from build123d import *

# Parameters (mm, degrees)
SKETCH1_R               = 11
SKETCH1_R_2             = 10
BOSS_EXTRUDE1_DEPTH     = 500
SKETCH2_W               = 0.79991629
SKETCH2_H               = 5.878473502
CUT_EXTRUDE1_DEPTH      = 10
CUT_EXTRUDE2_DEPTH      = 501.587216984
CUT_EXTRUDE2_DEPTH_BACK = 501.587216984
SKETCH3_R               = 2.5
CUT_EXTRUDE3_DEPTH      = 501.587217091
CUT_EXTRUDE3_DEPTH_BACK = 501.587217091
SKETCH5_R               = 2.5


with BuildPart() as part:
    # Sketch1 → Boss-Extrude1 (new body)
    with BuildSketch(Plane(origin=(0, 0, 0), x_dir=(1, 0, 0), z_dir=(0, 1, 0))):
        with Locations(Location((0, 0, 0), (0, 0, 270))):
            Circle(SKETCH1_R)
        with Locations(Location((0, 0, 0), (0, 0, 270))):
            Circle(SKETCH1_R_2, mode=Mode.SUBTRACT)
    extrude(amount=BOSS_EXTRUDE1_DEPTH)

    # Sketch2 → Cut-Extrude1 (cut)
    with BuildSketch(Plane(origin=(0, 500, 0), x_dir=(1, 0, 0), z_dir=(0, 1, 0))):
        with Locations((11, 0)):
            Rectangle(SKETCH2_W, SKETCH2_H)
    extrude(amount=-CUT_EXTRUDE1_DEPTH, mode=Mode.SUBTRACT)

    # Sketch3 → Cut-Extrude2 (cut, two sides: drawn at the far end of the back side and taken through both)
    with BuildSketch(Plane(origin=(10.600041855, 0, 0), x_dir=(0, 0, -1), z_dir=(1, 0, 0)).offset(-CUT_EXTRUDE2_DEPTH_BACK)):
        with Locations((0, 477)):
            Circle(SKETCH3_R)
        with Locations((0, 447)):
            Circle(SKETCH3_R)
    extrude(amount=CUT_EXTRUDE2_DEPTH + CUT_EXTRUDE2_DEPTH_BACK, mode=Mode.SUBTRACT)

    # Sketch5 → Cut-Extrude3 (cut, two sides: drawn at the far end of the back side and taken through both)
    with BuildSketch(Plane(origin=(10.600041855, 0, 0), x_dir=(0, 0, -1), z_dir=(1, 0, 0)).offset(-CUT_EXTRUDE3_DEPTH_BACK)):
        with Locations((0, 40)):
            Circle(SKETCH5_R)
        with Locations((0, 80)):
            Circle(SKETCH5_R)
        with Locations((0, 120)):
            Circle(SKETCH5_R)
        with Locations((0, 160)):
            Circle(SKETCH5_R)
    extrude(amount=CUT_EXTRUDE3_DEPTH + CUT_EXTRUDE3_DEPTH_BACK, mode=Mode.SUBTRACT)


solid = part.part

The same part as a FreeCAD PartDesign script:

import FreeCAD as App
import Part
import Sketcher

V = App.Vector
Q = App.Units.Quantity

doc = App.newDocument("Part")
body = doc.addObject("PartDesign::Body", "Body")

sketch1 = body.newObject("Sketcher::SketchObject", "Sketch")
sketch1.AttachmentSupport = (doc.getObject("XZ_Plane"), [""])
sketch1.MapMode = "FlatFace"
sketch1.addGeometry([
    Part.Circle(V(0, 0, 0), V(0, 0, 1), 11),
    Part.Circle(V(0, 0, 0), V(0, 0, 1), 10),
], False)
sketch1.addConstraint([
    Sketcher.Constraint("Coincident", 0, 3, -1, 1),
    Sketcher.Constraint("Coincident", 1, 3, -1, 1),
    Sketcher.Constraint("Diameter", 0, Q("22 mm")),
    Sketcher.Constraint("Diameter", 1, Q("20 mm")),
])
pad1 = body.newObject("PartDesign::Pad", "Pad")
pad1.Profile = sketch1
pad1.Length = 500
pad1.Reversed = True

sketch2 = body.newObject("Sketcher::SketchObject", "Sketch001")
sketch2.AttachmentSupport = (doc.getObject("XZ_Plane"), [""])
sketch2.MapMode = "FlatFace"
sketch2.AttachmentOffset = App.Placement(V(0, 0, -500), App.Rotation())
sketch2.addGeometry([
    Part.LineSegment(V(10.6, -2.9, 0), V(10.6, 2.9, 0)),
    Part.LineSegment(V(10.6, 2.9, 0), V(11.4, 2.9, 0)),
    Part.LineSegment(V(11.4, 2.9, 0), V(11.4, -2.9, 0)),
    Part.LineSegment(V(11.4, -2.9, 0), V(10.6, -2.9, 0)),
], False)
sketch2.addConstraint([
    Sketcher.Constraint("Coincident", 0, 2, 1, 1),
    Sketcher.Constraint("Coincident", 1, 2, 2, 1),
    Sketcher.Constraint("Coincident", 2, 2, 3, 1),
    Sketcher.Constraint("Coincident", 3, 2, 0, 1),
    Sketcher.Constraint("Vertical", 0),
    Sketcher.Constraint("Horizontal", 1),
    Sketcher.Constraint("Vertical", 2),
    Sketcher.Constraint("Horizontal", 3),
    Sketcher.Constraint("DistanceX", 1, 1, 1, 2, Q("0.799916 mm")),
    Sketcher.Constraint("DistanceY", 0, 1, 0, 2, Q("5.878474 mm")),
    Sketcher.Constraint("DistanceX", -1, 1, 0, 2, Q("10.600042 mm")),
    Sketcher.Constraint("DistanceY", -1, 1, 0, 2, Q("2.939237 mm")),
])
pocket1 = body.newObject("PartDesign::Pocket", "Pocket")
pocket1.Profile = sketch2
pocket1.Length = 10
pocket1.Reversed = True

sketch3 = body.newObject("Sketcher::SketchObject", "Sketch002")
sketch3.AttachmentSupport = (doc.getObject("YZ_Plane"), [""])
sketch3.MapMode = "FlatFace"
sketch3.AttachmentOffset = App.Placement(V(0, 0, 10.600042), App.Rotation())
sketch3.addGeometry([
    Part.Circle(V(477, 0, 0), V(0, 0, 1), 2.5),
    Part.Circle(V(447, 0, 0), V(0, 0, 1), 2.5),
], False)
sketch3.addConstraint([
    Sketcher.Constraint("Equal", 0, 1),
    Sketcher.Constraint("PointOnObject", 0, 3, -1),
    Sketcher.Constraint("PointOnObject", 1, 3, -1),
    Sketcher.Constraint("Diameter", 0, Q("5 mm")),
    Sketcher.Constraint("DistanceX", -1, 1, 0, 3, Q("477 mm")),
    Sketcher.Constraint("DistanceX", -1, 1, 1, 3, Q("447 mm")),
])
pocket2 = body.newObject("PartDesign::Pocket", "Pocket001")
pocket2.Profile = sketch3
pocket2.Type = "ThroughAll"
pocket2.Midplane = True

sketch4 = body.newObject("Sketcher::SketchObject", "Sketch003")
sketch4.AttachmentSupport = (doc.getObject("YZ_Plane"), [""])
sketch4.MapMode = "FlatFace"
sketch4.AttachmentOffset = App.Placement(V(0, 0, 10.600042), App.Rotation())
sketch4.addGeometry([
    Part.Circle(V(40, 0, 0), V(0, 0, 1), 2.5),
    Part.Circle(V(80, 0, 0), V(0, 0, 1), 2.5),
    Part.Circle(V(120, 0, 0), V(0, 0, 1), 2.5),
    Part.Circle(V(160, 0, 0), V(0, 0, 1), 2.5),
], False)
sketch4.addConstraint([
    Sketcher.Constraint("Equal", 0, 1),
    Sketcher.Constraint("Equal", 1, 2),
    Sketcher.Constraint("Equal", 2, 3),
    Sketcher.Constraint("PointOnObject", 0, 3, -1),
    Sketcher.Constraint("PointOnObject", 1, 3, -1),
    Sketcher.Constraint("PointOnObject", 2, 3, -1),
    Sketcher.Constraint("PointOnObject", 3, 3, -1),
    Sketcher.Constraint("Diameter", 0, Q("5 mm")),
    Sketcher.Constraint("DistanceX", -1, 1, 0, 3, Q("40 mm")),
    Sketcher.Constraint("DistanceX", -1, 1, 1, 3, Q("80 mm")),
    Sketcher.Constraint("DistanceX", -1, 1, 2, 3, Q("120 mm")),
    Sketcher.Constraint("DistanceX", -1, 1, 3, 3, Q("160 mm")),
])
pocket3 = body.newObject("PartDesign::Pocket", "Pocket002")
pocket3.Profile = sketch4
pocket3.Type = "ThroughAll"
pocket3.Midplane = True

doc.recompute()
